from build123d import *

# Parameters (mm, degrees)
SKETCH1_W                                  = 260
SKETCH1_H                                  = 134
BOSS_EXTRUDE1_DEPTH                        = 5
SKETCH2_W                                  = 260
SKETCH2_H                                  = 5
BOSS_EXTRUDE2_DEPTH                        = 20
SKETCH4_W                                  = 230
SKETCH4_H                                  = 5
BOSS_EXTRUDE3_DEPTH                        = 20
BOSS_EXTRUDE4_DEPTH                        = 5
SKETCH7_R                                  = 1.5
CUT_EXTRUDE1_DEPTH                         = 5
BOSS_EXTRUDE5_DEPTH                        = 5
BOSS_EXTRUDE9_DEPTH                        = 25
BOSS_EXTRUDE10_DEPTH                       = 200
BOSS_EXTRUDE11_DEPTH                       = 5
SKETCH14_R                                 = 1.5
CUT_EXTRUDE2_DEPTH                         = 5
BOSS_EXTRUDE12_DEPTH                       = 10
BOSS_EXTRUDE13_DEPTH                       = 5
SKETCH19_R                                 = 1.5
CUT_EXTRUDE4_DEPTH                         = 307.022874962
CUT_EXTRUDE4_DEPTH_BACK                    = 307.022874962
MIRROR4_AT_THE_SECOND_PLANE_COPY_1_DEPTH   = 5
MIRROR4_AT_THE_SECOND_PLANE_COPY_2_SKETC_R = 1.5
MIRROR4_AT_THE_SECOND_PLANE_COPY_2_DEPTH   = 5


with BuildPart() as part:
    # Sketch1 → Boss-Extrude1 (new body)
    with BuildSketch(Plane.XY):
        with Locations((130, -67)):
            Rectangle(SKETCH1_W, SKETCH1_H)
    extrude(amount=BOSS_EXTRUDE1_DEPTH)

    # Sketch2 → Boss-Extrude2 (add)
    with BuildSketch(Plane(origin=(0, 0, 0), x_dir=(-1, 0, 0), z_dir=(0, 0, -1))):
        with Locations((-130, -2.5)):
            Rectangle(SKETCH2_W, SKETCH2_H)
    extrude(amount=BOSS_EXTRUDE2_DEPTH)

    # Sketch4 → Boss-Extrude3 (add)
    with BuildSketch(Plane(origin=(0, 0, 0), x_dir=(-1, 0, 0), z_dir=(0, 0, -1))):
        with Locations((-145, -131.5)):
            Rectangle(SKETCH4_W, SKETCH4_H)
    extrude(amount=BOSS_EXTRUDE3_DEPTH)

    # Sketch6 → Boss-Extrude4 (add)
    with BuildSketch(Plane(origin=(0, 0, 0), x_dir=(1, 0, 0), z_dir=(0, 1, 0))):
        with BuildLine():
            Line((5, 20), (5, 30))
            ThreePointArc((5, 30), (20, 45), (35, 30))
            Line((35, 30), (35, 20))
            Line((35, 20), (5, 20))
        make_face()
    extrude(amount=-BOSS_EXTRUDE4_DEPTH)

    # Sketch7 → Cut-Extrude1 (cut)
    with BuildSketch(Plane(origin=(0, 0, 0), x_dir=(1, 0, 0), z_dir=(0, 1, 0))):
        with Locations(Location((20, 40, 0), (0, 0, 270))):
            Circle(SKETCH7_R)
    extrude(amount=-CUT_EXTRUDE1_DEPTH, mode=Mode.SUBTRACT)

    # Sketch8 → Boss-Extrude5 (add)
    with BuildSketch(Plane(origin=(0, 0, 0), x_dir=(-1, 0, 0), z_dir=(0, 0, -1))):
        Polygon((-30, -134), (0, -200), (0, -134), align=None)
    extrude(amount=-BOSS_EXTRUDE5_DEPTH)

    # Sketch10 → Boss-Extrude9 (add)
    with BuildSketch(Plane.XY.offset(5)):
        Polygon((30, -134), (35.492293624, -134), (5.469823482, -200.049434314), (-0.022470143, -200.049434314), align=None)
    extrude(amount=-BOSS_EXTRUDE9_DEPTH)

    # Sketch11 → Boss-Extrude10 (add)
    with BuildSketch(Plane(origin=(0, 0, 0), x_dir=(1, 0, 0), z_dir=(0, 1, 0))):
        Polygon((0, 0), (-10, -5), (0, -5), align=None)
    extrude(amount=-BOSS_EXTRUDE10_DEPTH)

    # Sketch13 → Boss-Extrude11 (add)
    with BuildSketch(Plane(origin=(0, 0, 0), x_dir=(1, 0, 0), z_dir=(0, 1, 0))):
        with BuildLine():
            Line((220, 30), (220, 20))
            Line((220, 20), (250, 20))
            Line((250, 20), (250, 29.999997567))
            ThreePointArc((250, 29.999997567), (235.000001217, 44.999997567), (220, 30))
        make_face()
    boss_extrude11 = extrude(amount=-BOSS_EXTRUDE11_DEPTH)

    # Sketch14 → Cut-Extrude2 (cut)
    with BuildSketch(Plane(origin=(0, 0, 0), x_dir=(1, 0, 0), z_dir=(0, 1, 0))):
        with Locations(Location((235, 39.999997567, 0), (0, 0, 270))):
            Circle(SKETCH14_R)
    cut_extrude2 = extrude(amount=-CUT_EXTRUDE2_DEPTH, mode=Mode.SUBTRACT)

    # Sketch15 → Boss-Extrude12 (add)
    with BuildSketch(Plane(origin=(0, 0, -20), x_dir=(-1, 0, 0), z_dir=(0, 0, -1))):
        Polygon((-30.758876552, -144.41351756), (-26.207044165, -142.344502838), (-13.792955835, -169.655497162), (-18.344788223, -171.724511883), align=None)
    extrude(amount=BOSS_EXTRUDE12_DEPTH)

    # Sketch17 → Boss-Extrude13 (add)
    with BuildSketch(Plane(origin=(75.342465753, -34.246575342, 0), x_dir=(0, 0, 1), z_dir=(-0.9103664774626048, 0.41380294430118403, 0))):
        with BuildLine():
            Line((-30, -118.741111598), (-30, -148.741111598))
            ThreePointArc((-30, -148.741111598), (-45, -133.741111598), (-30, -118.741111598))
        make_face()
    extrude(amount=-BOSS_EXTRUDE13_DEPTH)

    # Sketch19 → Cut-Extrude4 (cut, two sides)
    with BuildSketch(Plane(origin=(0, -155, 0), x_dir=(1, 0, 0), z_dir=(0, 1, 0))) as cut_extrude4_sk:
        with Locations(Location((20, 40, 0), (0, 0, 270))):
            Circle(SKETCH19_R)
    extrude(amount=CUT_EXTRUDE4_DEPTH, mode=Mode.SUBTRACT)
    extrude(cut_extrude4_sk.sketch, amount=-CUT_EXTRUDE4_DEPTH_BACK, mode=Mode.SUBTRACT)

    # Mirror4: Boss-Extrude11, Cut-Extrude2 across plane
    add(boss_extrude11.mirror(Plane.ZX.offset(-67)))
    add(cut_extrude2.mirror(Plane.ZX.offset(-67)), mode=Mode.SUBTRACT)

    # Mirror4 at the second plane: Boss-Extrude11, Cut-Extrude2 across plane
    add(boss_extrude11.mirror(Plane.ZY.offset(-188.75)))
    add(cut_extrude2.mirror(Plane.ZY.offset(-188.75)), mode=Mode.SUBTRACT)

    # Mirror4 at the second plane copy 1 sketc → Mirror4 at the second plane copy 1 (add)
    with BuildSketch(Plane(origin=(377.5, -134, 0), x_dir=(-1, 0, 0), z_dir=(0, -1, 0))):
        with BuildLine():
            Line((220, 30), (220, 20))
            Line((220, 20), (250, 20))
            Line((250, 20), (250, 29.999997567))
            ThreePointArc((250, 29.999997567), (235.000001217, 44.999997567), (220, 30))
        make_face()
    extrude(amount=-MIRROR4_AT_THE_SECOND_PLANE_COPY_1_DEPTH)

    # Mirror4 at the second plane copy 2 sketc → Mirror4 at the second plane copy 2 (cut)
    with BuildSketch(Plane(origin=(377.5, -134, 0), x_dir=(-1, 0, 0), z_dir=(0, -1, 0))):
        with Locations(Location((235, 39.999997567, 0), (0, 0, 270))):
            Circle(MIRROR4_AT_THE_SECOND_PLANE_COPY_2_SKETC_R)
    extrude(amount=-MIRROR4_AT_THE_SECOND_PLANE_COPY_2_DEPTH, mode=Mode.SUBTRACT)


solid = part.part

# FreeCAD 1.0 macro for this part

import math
import FreeCAD as App
import Part
import Sketcher

V = App.Vector

doc = App.newDocument("Part")
body = doc.addObject("PartDesign::Body", "Body")

# Sketch on XY plane
sketch1 = body.newObject("Sketcher::SketchObject", "Sketch")
sketch1.AttachmentSupport = (doc.getObject("XY_Plane"), [""])
sketch1.MapMode = "FlatFace"
sketch1.addGeometry(Part.LineSegment(V(0, 0, 0), V(0, -134, 0)), False)
sketch1.addGeometry(Part.LineSegment(V(0, -134, 0), V(260, -134, 0)), False)
sketch1.addGeometry(Part.LineSegment(V(260, -134, 0), V(260, 0, 0)), False)
sketch1.addGeometry(Part.LineSegment(V(260, 0, 0), V(0, 0, 0)), False)
sketch1.addConstraint(Sketcher.Constraint("Coincident", 0, 2, 1, 1))
sketch1.addConstraint(Sketcher.Constraint("Coincident", 1, 2, 2, 1))
sketch1.addConstraint(Sketcher.Constraint("Coincident", 2, 2, 3, 1))
sketch1.addConstraint(Sketcher.Constraint("Coincident", 3, 2, 0, 1))
sketch1.addConstraint(Sketcher.Constraint("Vertical", 0))
sketch1.addConstraint(Sketcher.Constraint("Horizontal", 1))
sketch1.addConstraint(Sketcher.Constraint("Vertical", 2))
sketch1.addConstraint(Sketcher.Constraint("Horizontal", 3))
sketch1.addConstraint(Sketcher.Constraint("Coincident", 3, 2, -1, 1))
sketch1.addConstraint(Sketcher.Constraint("DistanceX", 1, 1, 1, 2, 260.0))
sketch1.addConstraint(Sketcher.Constraint("DistanceY", 0, 2, 0, 1, 134.0))
pad1 = body.newObject("PartDesign::Pad", "Pad")
pad1.Profile = sketch1
pad1.Length = 5

# Sketch on XY plane
sketch2 = body.newObject("Sketcher::SketchObject", "Sketch001")
sketch2.AttachmentSupport = (doc.getObject("XY_Plane"), [""])
sketch2.MapMode = "FlatFace"
sketch2.addGeometry(Part.LineSegment(V(260, 0, 0), V(260, -5, 0)), False)
sketch2.addGeometry(Part.LineSegment(V(260, -5, 0), V(0, -5, 0)), False)
sketch2.addGeometry(Part.LineSegment(V(0, -5, 0), V(0, 0, 0)), False)
sketch2.addGeometry(Part.LineSegment(V(0, 0, 0), V(260, 0, 0)), False)
sketch2.addConstraint(Sketcher.Constraint("Coincident", 0, 2, 1, 1))
sketch2.addConstraint(Sketcher.Constraint("Coincident", 1, 2, 2, 1))
sketch2.addConstraint(Sketcher.Constraint("Coincident", 2, 2, 3, 1))
sketch2.addConstraint(Sketcher.Constraint("Coincident", 3, 2, 0, 1))
sketch2.addConstraint(Sketcher.Constraint("Vertical", 0))
sketch2.addConstraint(Sketcher.Constraint("Horizontal", 1))
sketch2.addConstraint(Sketcher.Constraint("Vertical", 2))
sketch2.addConstraint(Sketcher.Constraint("Horizontal", 3))
sketch2.addConstraint(Sketcher.Constraint("Coincident", 2, 2, -1, 1))
sketch2.addConstraint(Sketcher.Constraint("DistanceX", 1, 2, 1, 1, 260.0))
sketch2.addConstraint(Sketcher.Constraint("DistanceY", 0, 2, 0, 1, 5.0))
pad2 = body.newObject("PartDesign::Pad", "Pad001")
pad2.Profile = sketch2
pad2.Length = 20
pad2.Reversed = True

# Sketch on XY plane
sketch3 = body.newObject("Sketcher::SketchObject", "Sketch002")
sketch3.AttachmentSupport = (doc.getObject("XY_Plane"), [""])
sketch3.MapMode = "FlatFace"
sketch3.addGeometry(Part.LineSegment(V(260, -129, 0), V(260, -134, 0)), False)
sketch3.addGeometry(Part.LineSegment(V(260, -134, 0), V(30, -134, 0)), False)
sketch3.addGeometry(Part.LineSegment(V(30, -134, 0), V(30, -129, 0)), False)
sketch3.addGeometry(Part.LineSegment(V(30, -129, 0), V(260, -129, 0)), False)
sketch3.addConstraint(Sketcher.Constraint("Coincident", 0, 2, 1, 1))
sketch3.addConstraint(Sketcher.Constraint("Coincident", 1, 2, 2, 1))
sketch3.addConstraint(Sketcher.Constraint("Coincident", 2, 2, 3, 1))
sketch3.addConstraint(Sketcher.Constraint("Coincident", 3, 2, 0, 1))
sketch3.addConstraint(Sketcher.Constraint("Vertical", 0))
sketch3.addConstraint(Sketcher.Constraint("Horizontal", 1))
sketch3.addConstraint(Sketcher.Constraint("Vertical", 2))
sketch3.addConstraint(Sketcher.Constraint("Horizontal", 3))
sketch3.addConstraint(Sketcher.Constraint("DistanceX", 1, 2, 1, 1, 230.0))
sketch3.addConstraint(Sketcher.Constraint("DistanceY", 0, 2, 0, 1, 5.0))
sketch3.addConstraint(Sketcher.Constraint("DistanceX", -1, 1, 0, 2, 260.0))
sketch3.addConstraint(Sketcher.Constraint("DistanceY", 0, 2, -1, 1, 134.0))
pad3 = body.newObject("PartDesign::Pad", "Pad002")
pad3.Profile = sketch3
pad3.Length = 20
pad3.Reversed = True

# Sketch on XZ plane
sketch4 = body.newObject("Sketcher::SketchObject", "Sketch003")
sketch4.AttachmentSupport = (doc.getObject("XZ_Plane"), [""])
sketch4.MapMode = "FlatFace"
sketch4.addGeometry(Part.LineSegment(V(5, -30, 0), V(5, -20, 0)), False)
sketch4.addGeometry(Part.LineSegment(V(5, -20, 0), V(35, -20, 0)), False)
sketch4.addGeometry(Part.LineSegment(V(35, -20, 0), V(35, -30, 0)), False)
sketch4.addGeometry(Part.ArcOfCircle(Part.Circle(V(20, -30, 0), V(0, 0, 1), 15), math.radians(180), math.radians(360)), False)
sketch4.addConstraint(Sketcher.Constraint("Coincident", 0, 2, 1, 1))
sketch4.addConstraint(Sketcher.Constraint("Coincident", 1, 2, 2, 1))
sketch4.addConstraint(Sketcher.Constraint("Tangent", 2, 2, 3, 2))
sketch4.addConstraint(Sketcher.Constraint("Tangent", 3, 1, 0, 1))
sketch4.addConstraint(Sketcher.Constraint("Vertical", 0))
sketch4.addConstraint(Sketcher.Constraint("Horizontal", 1))
sketch4.addConstraint(Sketcher.Constraint("Vertical", 2))
sketch4.addConstraint(Sketcher.Constraint("Radius", 3, 15.0))
sketch4.addConstraint(Sketcher.Constraint("DistanceY", 0, 1, 0, 2, 10.0))
sketch4.addConstraint(Sketcher.Constraint("DistanceX", -1, 1, 3, 3, 20.0))
sketch4.addConstraint(Sketcher.Constraint("DistanceY", 3, 3, -1, 1, 30.0))
pad4 = body.newObject("PartDesign::Pad", "Pad003")
pad4.Profile = sketch4
pad4.Length = 5

# Sketch on XZ plane
sketch5 = body.newObject("Sketcher::SketchObject", "Sketch004")
sketch5.AttachmentSupport = (doc.getObject("XZ_Plane"), [""])
sketch5.MapMode = "FlatFace"
sketch5.addGeometry(Part.Circle(V(20, -40, 0), V(0, 0, 1), 1.5), False)
sketch5.addConstraint(Sketcher.Constraint("Diameter", 0, 3.0))
sketch5.addConstraint(Sketcher.Constraint("DistanceX", -1, 1, 0, 3, 20.0))
sketch5.addConstraint(Sketcher.Constraint("DistanceY", 0, 3, -1, 1, 40.0))
pocket1 = body.newObject("PartDesign::Pocket", "Pocket")
pocket1.Profile = sketch5
pocket1.Length = 5
pocket1.Reversed = True

# Sketch on XY plane
sketch6 = body.newObject("Sketcher::SketchObject", "Sketch005")
sketch6.AttachmentSupport = (doc.getObject("XY_Plane"), [""])
sketch6.MapMode = "FlatFace"
sketch6.addGeometry(Part.LineSegment(V(30, -134, 0), V(0, -200, 0)), False)
sketch6.addGeometry(Part.LineSegment(V(0, -200, 0), V(0, -134, 0)), False)
sketch6.addGeometry(Part.LineSegment(V(0, -134, 0), V(30, -134, 0)), False)
sketch6.addConstraint(Sketcher.Constraint("Coincident", 0, 2, 1, 1))
sketch6.addConstraint(Sketcher.Constraint("Coincident", 1, 2, 2, 1))
sketch6.addConstraint(Sketcher.Constraint("Coincident", 2, 2, 0, 1))
sketch6.addConstraint(Sketcher.Constraint("Vertical", 1))
sketch6.addConstraint(Sketcher.Constraint("Horizontal", 2))
sketch6.addConstraint(Sketcher.Constraint("PointOnObject", 0, 2, -2))
sketch6.addConstraint(Sketcher.Constraint("DistanceX", 2, 1, 2, 2, 30.0))
sketch6.addConstraint(Sketcher.Constraint("DistanceY", 1, 1, 1, 2, 66.0))
sketch6.addConstraint(Sketcher.Constraint("DistanceY", 0, 2, -1, 1, 200.0))
pad5 = body.newObject("PartDesign::Pad", "Pad004")
pad5.Profile = sketch6
pad5.Length = 5

# Sketch on XY plane
sketch7 = body.newObject("Sketcher::SketchObject", "Sketch006")
sketch7.AttachmentSupport = (doc.getObject("XY_Plane"), [""])
sketch7.MapMode = "FlatFace"
sketch7.AttachmentOffset = App.Placement(V(0, 0, 5), App.Rotation())
sketch7.addGeometry(Part.LineSegment(V(35.492294, -134, 0), V(30, -134, 0)), False)
sketch7.addGeometry(Part.LineSegment(V(30, -134, 0), V(-0.02247, -200.049434, 0)), False)
sketch7.addGeometry(Part.LineSegment(V(-0.02247, -200.049434, 0), V(5.469823, -200.049434, 0)), False)
sketch7.addGeometry(Part.LineSegment(V(5.469823, -200.049434, 0), V(35.492294, -134, 0)), False)
sketch7.addConstraint(Sketcher.Constraint("Coincident", 0, 2, 1, 1))
sketch7.addConstraint(Sketcher.Constraint("Coincident", 1, 2, 2, 1))
sketch7.addConstraint(Sketcher.Constraint("Coincident", 2, 2, 3, 1))
sketch7.addConstraint(Sketcher.Constraint("Coincident", 3, 2, 0, 1))
sketch7.addConstraint(Sketcher.Constraint("Horizontal", 0))
sketch7.addConstraint(Sketcher.Constraint("Horizontal", 2))
sketch7.addConstraint(Sketcher.Constraint("Parallel", 1, 3))
sketch7.addConstraint(Sketcher.Constraint("DistanceX", -1, 1, 0, 2, 30.0))
sketch7.addConstraint(Sketcher.Constraint("DistanceY", 0, 2, -1, 1, 134.0))
sketch7.addConstraint(Sketcher.Constraint("DistanceX", 0, 2, 0, 1, 5.492294))
sketch7.addConstraint(Sketcher.Constraint("DistanceX", 1, 2, -1, 1, 0.02247))
sketch7.addConstraint(Sketcher.Constraint("Distance", 1, 72.552577))
pad6 = body.newObject("PartDesign::Pad", "Pad005")
pad6.Profile = sketch7
pad6.Length = 25
pad6.Reversed = True

# Sketch on XZ plane
sketch8 = body.newObject("Sketcher::SketchObject", "Sketch007")
sketch8.AttachmentSupport = (doc.getObject("XZ_Plane"), [""])
sketch8.MapMode = "FlatFace"
sketch8.addGeometry(Part.LineSegment(V(0, 0, 0), V(-10, 5, 0)), False)
sketch8.addGeometry(Part.LineSegment(V(-10, 5, 0), V(0, 5, 0)), False)
sketch8.addGeometry(Part.LineSegment(V(0, 5, 0), V(0, 0, 0)), False)
sketch8.addConstraint(Sketcher.Constraint("Coincident", 0, 2, 1, 1))
sketch8.addConstraint(Sketcher.Constraint("Coincident", 1, 2, 2, 1))
sketch8.addConstraint(Sketcher.Constraint("Coincident", 2, 2, 0, 1))
sketch8.addConstraint(Sketcher.Constraint("Horizontal", 1))
sketch8.addConstraint(Sketcher.Constraint("Vertical", 2))
sketch8.addConstraint(Sketcher.Constraint("Coincident", 2, 2, -1, 1))
sketch8.addConstraint(Sketcher.Constraint("DistanceX", 1, 1, 1, 2, 10.0))
sketch8.addConstraint(Sketcher.Constraint("DistanceY", 2, 2, 2, 1, 5.0))
pad7 = body.newObject("PartDesign::Pad", "Pad006")
pad7.Profile = sketch8
pad7.Length = 200

# Sketch on XZ plane
sketch9 = body.newObject("Sketcher::SketchObject", "Sketch008")
sketch9.AttachmentSupport = (doc.getObject("XZ_Plane"), [""])
sketch9.MapMode = "FlatFace"
sketch9.addGeometry(Part.LineSegment(V(220, -30, 0), V(220, -20, 0)), False)
sketch9.addGeometry(Part.LineSegment(V(220, -20, 0), V(250, -20, 0)), False)
sketch9.addGeometry(Part.LineSegment(V(250, -20, 0), V(250, -29.999998, 0)), False)
sketch9.addGeometry(Part.ArcOfCircle(Part.Circle(V(235, -29.999998, 0), V(0, 0, 1), 15), math.radians(-179.999991), math.radians(0)), False)
sketch9.addConstraint(Sketcher.Constraint("Coincident", 0, 2, 1, 1))
sketch9.addConstraint(Sketcher.Constraint("Coincident", 1, 2, 2, 1))
sketch9.addConstraint(Sketcher.Constraint("Tangent", 2, 2, 3, 2))
sketch9.addConstraint(Sketcher.Constraint("Tangent", 3, 1, 0, 1))
sketch9.addConstraint(Sketcher.Constraint("Vertical", 0))
sketch9.addConstraint(Sketcher.Constraint("Horizontal", 1))
sketch9.addConstraint(Sketcher.Constraint("Vertical", 2))
sketch9.addConstraint(Sketcher.Constraint("Radius", 3, 15.0))
sketch9.addConstraint(Sketcher.Constraint("DistanceY", 0, 1, 0, 2, 10.0))
sketch9.addConstraint(Sketcher.Constraint("DistanceX", -1, 1, 3, 3, 235.0))
sketch9.addConstraint(Sketcher.Constraint("DistanceY", 0, 2, -1, 1, 20.0))
pad8 = body.newObject("PartDesign::Pad", "Pad007")
pad8.Profile = sketch9
pad8.Length = 5

# Sketch on XZ plane
sketch10 = body.newObject("Sketcher::SketchObject", "Sketch009")
sketch10.AttachmentSupport = (doc.getObject("XZ_Plane"), [""])
sketch10.MapMode = "FlatFace"
sketch10.addGeometry(Part.Circle(V(235, -39.999998, 0), V(0, 0, 1), 1.5), False)
sketch10.addConstraint(Sketcher.Constraint("Diameter", 0, 3.0))
sketch10.addConstraint(Sketcher.Constraint("DistanceX", -1, 1, 0, 3, 235.0))
sketch10.addConstraint(Sketcher.Constraint("DistanceY", 0, 3, -1, 1, 39.999998))
pocket2 = body.newObject("PartDesign::Pocket", "Pocket001")
pocket2.Profile = sketch10
pocket2.Length = 5
pocket2.Reversed = True

# Sketch on XY plane
sketch11 = body.newObject("Sketcher::SketchObject", "Sketch010")
sketch11.AttachmentSupport = (doc.getObject("XY_Plane"), [""])
sketch11.MapMode = "FlatFace"
sketch11.AttachmentOffset = App.Placement(V(0, 0, -20), App.Rotation())
sketch11.addGeometry(Part.LineSegment(V(26.207044, -142.344503, 0), V(30.758877, -144.413518, 0)), False)
sketch11.addGeometry(Part.LineSegment(V(30.758877, -144.413518, 0), V(18.344788, -171.724512, 0)), False)
sketch11.addGeometry(Part.LineSegment(V(18.344788, -171.724512, 0), V(13.792956, -169.655497, 0)), False)
sketch11.addGeometry(Part.LineSegment(V(13.792956, -169.655497, 0), V(26.207044, -142.344503, 0)), False)
sketch11.addConstraint(Sketcher.Constraint("Coincident", 0, 2, 1, 1))
sketch11.addConstraint(Sketcher.Constraint("Coincident", 1, 2, 2, 1))
sketch11.addConstraint(Sketcher.Constraint("Coincident", 2, 2, 3, 1))
sketch11.addConstraint(Sketcher.Constraint("Coincident", 3, 2, 0, 1))
sketch11.addConstraint(Sketcher.Constraint("Perpendicular", 0, 1))
sketch11.addConstraint(Sketcher.Constraint("Perpendicular", 1, 2))
sketch11.addConstraint(Sketcher.Constraint("Perpendicular", 2, 3))
sketch11.addConstraint(Sketcher.Constraint("Distance", 0, 5.0))
sketch11.addConstraint(Sketcher.Constraint("Distance", 1, 30.0))
sketch11.addConstraint(Sketcher.Constraint("DistanceX", -1, 1, 1, 2, 18.344788))
sketch11.addConstraint(Sketcher.Constraint("DistanceY", 1, 2, -1, 1, 171.724512))
sketch11.addConstraint(Sketcher.Constraint("DistanceX", 1, 2, 0, 2, 12.414088))
pad9 = body.newObject("PartDesign::Pad", "Pad008")
pad9.Profile = sketch11
pad9.Length = 10
pad9.Reversed = True

# Sketch on an angled plane
sketch12 = body.newObject("Sketcher::SketchObject", "Sketch011")
sketch12.Placement = App.Placement(V(75.342466, -34.246575, 0), App.Rotation(V(0, 0, 1), V(0.413802944, 0.910366477, 0), V(-0.910366477, 0.413802944, 0), "ZXY"))
sketch12.addGeometry(Part.LineSegment(V(-30, -148.741111, 0), V(-30, -118.741111, 0)), False)
sketch12.addGeometry(Part.ArcOfCircle(Part.Circle(V(-30, -133.741111, 0), V(0, 0, 1), 15), math.radians(90), math.radians(270)), False)
sketch12.addConstraint(Sketcher.Constraint("Coincident", 0, 1, 1, 2))
sketch12.addConstraint(Sketcher.Constraint("Coincident", 1, 1, 0, 2))
sketch12.addConstraint(Sketcher.Constraint("Vertical", 0))
sketch12.addConstraint(Sketcher.Constraint("Vertical", 1, 3, 0, 1))
sketch12.addConstraint(Sketcher.Constraint("Radius", 1, 15.0))
sketch12.addConstraint(Sketcher.Constraint("DistanceX", 1, 3, -1, 1, 30.0))
sketch12.addConstraint(Sketcher.Constraint("DistanceY", 1, 3, -1, 1, 133.741111))
pad10 = body.newObject("PartDesign::Pad", "Pad009")
pad10.Profile = sketch12
pad10.Length = 5
pad10.Reversed = True

# Sketch on XZ plane
sketch13 = body.newObject("Sketcher::SketchObject", "Sketch012")
sketch13.AttachmentSupport = (doc.getObject("XZ_Plane"), [""])
sketch13.MapMode = "FlatFace"
sketch13.AttachmentOffset = App.Placement(V(0, 0, 155), App.Rotation())
sketch13.addGeometry(Part.Circle(V(20, -40, 0), V(0, 0, 1), 1.5), False)
sketch13.addConstraint(Sketcher.Constraint("Diameter", 0, 3.0))
sketch13.addConstraint(Sketcher.Constraint("DistanceX", -1, 1, 0, 3, 20.0))
sketch13.addConstraint(Sketcher.Constraint("DistanceY", 0, 3, -1, 1, 40.0))
pocket3 = body.newObject("PartDesign::Pocket", "Pocket002")
pocket3.Profile = sketch13
pocket3.Type = "ThroughAll"
pocket3.Midplane = True
doc.recompute()

datumplane = body.newObject("PartDesign::Plane", "DatumPlane")
datumplane.AttachmentSupport = (doc.getObject("XZ_Plane"), [""])
datumplane.MapMode = "FlatFace"
datumplane.AttachmentOffset = App.Placement(V(0, 0, 67), App.Rotation())
mirrored = body.newObject("PartDesign::Mirrored", "Mirrored")
mirrored.Originals = [pad8, pocket2]
mirrored.MirrorPlane = (datumplane, [""])
body.Tip = mirrored
doc.recompute()

datumplane2 = body.newObject("PartDesign::Plane", "DatumPlane001")
datumplane2.AttachmentSupport = (doc.getObject("YZ_Plane"), [""])
datumplane2.MapMode = "FlatFace"
datumplane2.AttachmentOffset = App.Placement(V(0, 0, 188.75), App.Rotation())
mirrored2 = body.newObject("PartDesign::Mirrored", "Mirrored001")
mirrored2.Originals = [pad8, pocket2]
mirrored2.MirrorPlane = (datumplane2, [""])
body.Tip = mirrored2

# Sketch on XZ plane
sketch14 = body.newObject("Sketcher::SketchObject", "Sketch013")
sketch14.AttachmentSupport = (doc.getObject("XZ_Plane"), [""])
sketch14.MapMode = "FlatFace"
sketch14.AttachmentOffset = App.Placement(V(0, 0, 134), App.Rotation())
sketch14.addGeometry(Part.LineSegment(V(157.5, -30, 0), V(157.5, -20, 0)), False)
sketch14.addGeometry(Part.LineSegment(V(157.5, -20, 0), V(127.5, -20, 0)), False)
sketch14.addGeometry(Part.LineSegment(V(127.5, -20, 0), V(127.5, -29.999998, 0)), False)
sketch14.addGeometry(Part.ArcOfCircle(Part.Circle(V(142.5, -29.999998, 0), V(0, 0, 1), 15), math.radians(180), math.radians(359.999991)), False)
sketch14.addConstraint(Sketcher.Constraint("Coincident", 0, 2, 1, 1))
sketch14.addConstraint(Sketcher.Constraint("Coincident", 1, 2, 2, 1))
sketch14.addConstraint(Sketcher.Constraint("Tangent", 2, 2, 3, 1))
sketch14.addConstraint(Sketcher.Constraint("Tangent", 3, 2, 0, 1))
sketch14.addConstraint(Sketcher.Constraint("Vertical", 0))
sketch14.addConstraint(Sketcher.Constraint("Horizontal", 1))
sketch14.addConstraint(Sketcher.Constraint("Vertical", 2))
sketch14.addConstraint(Sketcher.Constraint("Radius", 3, 15.0))
sketch14.addConstraint(Sketcher.Constraint("DistanceY", 0, 1, 0, 2, 10.0))
sketch14.addConstraint(Sketcher.Constraint("DistanceY", 0, 2, -1, 1, 20.0))
sketch14.addConstraint(Sketcher.Constraint("DistanceX", -1, 1, 3, 3, 142.5))
pad11 = body.newObject("PartDesign::Pad", "Pad010")
pad11.Profile = sketch14
pad11.Length = 5
pad11.Reversed = True

# Sketch on XZ plane
sketch15 = body.newObject("Sketcher::SketchObject", "Sketch014")
sketch15.AttachmentSupport = (doc.getObject("XZ_Plane"), [""])
sketch15.MapMode = "FlatFace"
sketch15.AttachmentOffset = App.Placement(V(0, 0, 134), App.Rotation())
sketch15.addGeometry(Part.Circle(V(142.5, -39.999998, 0), V(0, 0, 1), 1.5), False)
sketch15.addConstraint(Sketcher.Constraint("Diameter", 0, 3.0))
sketch15.addConstraint(Sketcher.Constraint("DistanceX", -1, 1, 0, 3, 142.5))
sketch15.addConstraint(Sketcher.Constraint("DistanceY", 0, 3, -1, 1, 39.999998))
pocket4 = body.newObject("PartDesign::Pocket", "Pocket003")
pocket4.Profile = sketch15
pocket4.Length = 5

doc.recompute()
